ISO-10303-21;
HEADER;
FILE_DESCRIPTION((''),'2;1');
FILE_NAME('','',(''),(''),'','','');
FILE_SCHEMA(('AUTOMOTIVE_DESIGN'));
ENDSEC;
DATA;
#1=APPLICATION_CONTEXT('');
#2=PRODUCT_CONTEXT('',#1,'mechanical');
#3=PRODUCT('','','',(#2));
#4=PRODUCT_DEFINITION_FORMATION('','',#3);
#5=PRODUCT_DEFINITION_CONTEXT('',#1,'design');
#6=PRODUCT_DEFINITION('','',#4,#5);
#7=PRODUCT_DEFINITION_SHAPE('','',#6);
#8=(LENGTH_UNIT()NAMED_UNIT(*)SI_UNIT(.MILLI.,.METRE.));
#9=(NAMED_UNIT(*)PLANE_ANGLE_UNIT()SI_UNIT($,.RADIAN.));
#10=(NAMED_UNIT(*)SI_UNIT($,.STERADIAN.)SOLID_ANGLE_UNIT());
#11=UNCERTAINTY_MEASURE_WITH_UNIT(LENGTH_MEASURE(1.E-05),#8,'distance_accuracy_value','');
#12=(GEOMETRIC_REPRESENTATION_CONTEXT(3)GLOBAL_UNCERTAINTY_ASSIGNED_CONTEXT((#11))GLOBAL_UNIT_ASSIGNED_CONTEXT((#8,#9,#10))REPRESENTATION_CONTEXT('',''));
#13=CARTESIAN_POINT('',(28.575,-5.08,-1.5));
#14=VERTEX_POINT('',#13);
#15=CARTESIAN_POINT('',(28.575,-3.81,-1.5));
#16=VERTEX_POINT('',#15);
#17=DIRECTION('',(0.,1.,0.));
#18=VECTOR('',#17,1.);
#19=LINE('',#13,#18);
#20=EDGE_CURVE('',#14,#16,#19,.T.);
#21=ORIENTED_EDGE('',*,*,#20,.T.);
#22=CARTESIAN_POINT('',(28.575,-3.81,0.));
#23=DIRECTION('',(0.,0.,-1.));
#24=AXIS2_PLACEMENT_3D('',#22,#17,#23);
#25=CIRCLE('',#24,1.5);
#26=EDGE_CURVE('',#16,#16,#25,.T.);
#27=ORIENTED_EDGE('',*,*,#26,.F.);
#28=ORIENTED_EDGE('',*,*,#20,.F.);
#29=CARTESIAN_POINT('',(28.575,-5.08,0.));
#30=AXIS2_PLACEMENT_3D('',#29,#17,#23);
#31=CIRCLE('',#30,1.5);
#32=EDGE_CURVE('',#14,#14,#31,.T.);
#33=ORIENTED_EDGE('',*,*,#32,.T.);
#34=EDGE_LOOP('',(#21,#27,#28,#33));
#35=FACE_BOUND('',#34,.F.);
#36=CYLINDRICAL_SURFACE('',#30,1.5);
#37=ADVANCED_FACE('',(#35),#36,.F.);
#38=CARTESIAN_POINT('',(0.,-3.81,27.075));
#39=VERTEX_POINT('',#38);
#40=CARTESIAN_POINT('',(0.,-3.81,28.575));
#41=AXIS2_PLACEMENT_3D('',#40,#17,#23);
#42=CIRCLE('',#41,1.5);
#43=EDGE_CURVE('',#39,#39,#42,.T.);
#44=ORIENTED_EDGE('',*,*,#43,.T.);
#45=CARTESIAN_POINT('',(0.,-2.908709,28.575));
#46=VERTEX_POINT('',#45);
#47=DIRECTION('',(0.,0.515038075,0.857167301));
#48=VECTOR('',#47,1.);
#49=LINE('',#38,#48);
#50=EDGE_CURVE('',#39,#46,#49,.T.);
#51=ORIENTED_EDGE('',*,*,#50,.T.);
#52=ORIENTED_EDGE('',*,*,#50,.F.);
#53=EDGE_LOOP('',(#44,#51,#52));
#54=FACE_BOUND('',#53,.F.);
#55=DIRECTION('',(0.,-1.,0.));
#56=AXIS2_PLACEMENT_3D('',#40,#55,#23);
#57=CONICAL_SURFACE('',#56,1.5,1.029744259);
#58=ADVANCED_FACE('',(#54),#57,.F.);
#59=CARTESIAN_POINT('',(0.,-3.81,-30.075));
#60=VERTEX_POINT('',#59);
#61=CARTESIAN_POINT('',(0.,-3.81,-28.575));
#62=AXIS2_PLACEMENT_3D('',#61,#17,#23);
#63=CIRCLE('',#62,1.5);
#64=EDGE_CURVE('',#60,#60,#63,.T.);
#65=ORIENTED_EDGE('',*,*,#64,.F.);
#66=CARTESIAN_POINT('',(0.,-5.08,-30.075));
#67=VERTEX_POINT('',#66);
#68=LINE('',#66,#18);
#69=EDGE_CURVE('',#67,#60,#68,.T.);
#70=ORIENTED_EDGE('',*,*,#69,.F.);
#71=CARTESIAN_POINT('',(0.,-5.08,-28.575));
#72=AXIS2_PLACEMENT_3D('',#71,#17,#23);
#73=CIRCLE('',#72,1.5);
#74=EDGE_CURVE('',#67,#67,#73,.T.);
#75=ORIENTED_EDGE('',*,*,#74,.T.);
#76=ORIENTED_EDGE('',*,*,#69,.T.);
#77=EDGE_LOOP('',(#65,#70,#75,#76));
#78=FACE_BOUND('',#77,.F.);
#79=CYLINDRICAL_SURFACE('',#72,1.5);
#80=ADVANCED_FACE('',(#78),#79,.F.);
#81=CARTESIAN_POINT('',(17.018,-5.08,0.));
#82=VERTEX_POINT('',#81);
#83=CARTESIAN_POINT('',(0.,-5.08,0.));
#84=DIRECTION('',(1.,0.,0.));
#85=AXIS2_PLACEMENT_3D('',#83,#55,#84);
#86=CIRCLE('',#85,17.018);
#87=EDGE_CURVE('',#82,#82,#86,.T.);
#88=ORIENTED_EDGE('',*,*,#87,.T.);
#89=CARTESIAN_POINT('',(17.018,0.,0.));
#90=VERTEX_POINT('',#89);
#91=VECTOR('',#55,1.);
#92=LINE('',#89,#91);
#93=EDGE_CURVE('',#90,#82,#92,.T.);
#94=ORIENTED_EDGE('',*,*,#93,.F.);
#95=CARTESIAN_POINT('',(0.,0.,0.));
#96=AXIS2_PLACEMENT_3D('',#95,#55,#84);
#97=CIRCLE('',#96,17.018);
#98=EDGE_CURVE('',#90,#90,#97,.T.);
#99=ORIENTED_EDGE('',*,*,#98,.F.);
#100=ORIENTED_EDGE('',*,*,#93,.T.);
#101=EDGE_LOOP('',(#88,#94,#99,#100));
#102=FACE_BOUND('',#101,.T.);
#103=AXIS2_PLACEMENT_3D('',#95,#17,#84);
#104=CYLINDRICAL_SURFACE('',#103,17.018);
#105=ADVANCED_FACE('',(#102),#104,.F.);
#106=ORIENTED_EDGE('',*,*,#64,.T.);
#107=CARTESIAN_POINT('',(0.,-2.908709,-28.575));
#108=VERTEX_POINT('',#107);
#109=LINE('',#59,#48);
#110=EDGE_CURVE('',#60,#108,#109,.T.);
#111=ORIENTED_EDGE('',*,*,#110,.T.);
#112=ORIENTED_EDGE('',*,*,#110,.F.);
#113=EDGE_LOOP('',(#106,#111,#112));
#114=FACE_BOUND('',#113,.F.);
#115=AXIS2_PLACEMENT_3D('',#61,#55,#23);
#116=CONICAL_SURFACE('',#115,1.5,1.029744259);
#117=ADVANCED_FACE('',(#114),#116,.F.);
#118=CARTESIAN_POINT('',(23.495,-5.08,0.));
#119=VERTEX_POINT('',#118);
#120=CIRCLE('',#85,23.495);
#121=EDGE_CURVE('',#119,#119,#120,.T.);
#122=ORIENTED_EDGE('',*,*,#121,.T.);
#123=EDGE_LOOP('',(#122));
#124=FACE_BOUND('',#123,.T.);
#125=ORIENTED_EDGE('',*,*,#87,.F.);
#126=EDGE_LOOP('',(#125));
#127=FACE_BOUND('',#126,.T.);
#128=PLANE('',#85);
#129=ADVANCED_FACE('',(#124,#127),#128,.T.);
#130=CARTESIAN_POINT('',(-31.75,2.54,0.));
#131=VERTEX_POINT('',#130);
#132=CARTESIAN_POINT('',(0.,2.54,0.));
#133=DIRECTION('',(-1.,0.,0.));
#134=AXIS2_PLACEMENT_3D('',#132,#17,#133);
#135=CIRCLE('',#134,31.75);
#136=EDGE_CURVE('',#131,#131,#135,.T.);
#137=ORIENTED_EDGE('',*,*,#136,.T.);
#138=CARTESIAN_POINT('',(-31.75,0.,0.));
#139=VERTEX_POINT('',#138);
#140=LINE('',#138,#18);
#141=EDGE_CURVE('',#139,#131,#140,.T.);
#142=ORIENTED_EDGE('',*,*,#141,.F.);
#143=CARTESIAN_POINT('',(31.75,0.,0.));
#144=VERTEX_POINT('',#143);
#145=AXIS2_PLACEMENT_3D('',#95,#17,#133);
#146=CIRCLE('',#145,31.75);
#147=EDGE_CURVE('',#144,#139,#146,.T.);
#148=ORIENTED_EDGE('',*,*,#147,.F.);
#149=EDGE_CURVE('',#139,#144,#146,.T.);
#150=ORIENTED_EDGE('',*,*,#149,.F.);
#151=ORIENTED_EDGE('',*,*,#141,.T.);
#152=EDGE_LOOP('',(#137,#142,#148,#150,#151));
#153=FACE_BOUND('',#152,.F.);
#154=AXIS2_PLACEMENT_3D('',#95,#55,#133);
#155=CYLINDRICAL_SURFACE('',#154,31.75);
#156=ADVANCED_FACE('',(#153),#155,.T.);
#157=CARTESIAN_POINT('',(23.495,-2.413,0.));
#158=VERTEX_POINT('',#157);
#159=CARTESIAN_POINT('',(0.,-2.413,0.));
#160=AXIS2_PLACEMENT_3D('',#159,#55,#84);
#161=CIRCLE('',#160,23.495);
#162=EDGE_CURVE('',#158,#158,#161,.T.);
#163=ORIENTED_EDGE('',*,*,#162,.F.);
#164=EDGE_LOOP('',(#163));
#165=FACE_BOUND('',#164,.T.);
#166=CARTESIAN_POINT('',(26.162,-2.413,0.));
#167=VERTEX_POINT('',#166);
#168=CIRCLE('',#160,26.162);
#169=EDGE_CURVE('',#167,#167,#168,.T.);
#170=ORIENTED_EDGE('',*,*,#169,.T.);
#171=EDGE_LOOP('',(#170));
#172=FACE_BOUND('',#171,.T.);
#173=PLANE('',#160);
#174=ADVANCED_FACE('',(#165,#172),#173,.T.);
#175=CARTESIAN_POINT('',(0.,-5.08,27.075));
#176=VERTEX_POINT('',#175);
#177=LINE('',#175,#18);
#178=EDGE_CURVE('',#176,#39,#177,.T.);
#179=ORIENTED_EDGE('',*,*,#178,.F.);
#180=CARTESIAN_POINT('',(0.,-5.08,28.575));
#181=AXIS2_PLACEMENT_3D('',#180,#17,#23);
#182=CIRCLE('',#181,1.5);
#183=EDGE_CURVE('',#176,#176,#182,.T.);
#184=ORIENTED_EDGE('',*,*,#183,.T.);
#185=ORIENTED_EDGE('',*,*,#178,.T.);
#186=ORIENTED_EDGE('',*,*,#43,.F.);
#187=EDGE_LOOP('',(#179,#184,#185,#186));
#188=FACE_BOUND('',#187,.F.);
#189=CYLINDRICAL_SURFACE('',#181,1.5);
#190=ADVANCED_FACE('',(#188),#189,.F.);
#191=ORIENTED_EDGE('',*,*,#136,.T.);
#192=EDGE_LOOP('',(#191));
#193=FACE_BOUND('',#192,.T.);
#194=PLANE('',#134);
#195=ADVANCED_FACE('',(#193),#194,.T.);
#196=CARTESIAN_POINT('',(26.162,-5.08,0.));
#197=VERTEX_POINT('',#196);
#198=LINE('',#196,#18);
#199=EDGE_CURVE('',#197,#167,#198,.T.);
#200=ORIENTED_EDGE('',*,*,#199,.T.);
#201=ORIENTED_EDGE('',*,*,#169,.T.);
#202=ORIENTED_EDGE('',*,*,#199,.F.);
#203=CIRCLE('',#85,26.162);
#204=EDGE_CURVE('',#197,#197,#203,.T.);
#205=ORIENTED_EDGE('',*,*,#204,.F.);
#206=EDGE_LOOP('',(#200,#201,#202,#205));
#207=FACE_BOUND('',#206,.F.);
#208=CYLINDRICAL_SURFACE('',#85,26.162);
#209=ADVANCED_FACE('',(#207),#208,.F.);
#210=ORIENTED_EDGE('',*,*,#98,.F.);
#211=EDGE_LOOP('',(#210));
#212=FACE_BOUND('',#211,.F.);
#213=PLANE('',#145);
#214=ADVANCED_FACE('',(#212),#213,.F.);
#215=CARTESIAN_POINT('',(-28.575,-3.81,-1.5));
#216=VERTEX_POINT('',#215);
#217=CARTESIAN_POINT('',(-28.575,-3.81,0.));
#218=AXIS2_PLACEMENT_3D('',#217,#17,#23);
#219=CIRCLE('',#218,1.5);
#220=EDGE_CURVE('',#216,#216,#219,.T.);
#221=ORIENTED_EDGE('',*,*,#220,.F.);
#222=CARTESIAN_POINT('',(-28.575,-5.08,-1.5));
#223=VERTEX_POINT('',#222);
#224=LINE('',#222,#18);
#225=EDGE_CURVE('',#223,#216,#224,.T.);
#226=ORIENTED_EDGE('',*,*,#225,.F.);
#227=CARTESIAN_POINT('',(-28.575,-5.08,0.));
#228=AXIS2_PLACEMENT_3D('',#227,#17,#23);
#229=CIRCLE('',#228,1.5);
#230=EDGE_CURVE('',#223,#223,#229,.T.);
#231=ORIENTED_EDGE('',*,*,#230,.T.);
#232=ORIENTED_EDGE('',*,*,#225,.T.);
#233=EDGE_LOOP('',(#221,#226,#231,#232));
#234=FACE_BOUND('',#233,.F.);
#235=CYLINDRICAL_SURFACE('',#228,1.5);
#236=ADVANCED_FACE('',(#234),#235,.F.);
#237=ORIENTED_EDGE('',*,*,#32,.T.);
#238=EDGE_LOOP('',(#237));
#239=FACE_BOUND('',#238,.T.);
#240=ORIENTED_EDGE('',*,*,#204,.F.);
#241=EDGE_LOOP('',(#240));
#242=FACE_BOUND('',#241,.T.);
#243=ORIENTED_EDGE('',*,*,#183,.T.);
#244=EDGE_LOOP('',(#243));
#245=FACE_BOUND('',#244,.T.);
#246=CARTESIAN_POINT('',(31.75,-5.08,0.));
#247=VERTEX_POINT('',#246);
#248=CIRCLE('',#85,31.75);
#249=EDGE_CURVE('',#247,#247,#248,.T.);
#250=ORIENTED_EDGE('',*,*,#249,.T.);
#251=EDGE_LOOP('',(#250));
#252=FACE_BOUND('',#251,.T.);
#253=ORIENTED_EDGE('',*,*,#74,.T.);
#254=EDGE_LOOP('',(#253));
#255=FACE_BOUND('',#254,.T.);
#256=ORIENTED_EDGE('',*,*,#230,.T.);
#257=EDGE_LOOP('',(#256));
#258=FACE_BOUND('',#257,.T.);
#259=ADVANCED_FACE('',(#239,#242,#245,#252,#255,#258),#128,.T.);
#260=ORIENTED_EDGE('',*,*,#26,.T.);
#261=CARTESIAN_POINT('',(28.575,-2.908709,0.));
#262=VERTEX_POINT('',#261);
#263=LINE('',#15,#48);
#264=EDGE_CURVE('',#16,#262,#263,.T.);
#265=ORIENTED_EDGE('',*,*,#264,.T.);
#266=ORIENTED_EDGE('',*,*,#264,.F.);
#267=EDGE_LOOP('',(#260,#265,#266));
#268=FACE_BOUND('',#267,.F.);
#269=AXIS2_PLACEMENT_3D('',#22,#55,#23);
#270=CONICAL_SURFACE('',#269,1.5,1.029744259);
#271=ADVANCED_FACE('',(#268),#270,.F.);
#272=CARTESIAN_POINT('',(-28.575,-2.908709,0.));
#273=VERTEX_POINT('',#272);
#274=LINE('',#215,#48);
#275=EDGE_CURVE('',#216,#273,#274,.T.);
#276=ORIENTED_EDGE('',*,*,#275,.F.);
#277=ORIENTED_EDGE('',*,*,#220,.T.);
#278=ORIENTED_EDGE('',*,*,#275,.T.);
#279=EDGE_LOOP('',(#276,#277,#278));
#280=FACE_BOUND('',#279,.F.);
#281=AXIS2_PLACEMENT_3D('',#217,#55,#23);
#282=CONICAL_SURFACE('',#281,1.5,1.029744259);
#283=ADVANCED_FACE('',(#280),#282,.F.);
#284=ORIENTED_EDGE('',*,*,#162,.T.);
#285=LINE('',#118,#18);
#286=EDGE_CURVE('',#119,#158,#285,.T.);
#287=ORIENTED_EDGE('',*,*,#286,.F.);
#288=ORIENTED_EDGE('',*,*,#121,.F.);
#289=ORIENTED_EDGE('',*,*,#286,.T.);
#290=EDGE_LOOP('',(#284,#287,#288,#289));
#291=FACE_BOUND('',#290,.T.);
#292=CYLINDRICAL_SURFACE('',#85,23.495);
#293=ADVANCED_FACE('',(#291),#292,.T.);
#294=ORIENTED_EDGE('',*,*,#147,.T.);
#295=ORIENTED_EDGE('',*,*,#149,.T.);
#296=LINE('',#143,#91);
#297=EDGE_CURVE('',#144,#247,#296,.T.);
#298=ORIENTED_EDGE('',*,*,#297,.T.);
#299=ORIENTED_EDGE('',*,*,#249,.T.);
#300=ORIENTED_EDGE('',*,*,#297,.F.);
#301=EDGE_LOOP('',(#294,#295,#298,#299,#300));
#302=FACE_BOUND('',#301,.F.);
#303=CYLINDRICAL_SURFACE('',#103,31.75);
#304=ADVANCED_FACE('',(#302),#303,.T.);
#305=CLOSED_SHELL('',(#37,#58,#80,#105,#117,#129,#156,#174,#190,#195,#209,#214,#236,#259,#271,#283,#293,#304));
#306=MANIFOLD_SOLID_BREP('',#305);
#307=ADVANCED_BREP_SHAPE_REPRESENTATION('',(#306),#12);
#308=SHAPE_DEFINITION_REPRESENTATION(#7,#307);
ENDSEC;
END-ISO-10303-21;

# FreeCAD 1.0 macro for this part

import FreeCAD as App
import Part
import Sketcher
Q = App.Units.Quantity

doc = App.newDocument("Part")
body = doc.addObject("PartDesign::Body", "Body")

# Sketch on XZ plane
sketch1 = body.newObject("Sketcher::SketchObject", "Sketch")
sketch1.AttachmentSupport = (doc.getObject("XZ_Plane"), [""])
sketch1.MapMode = "FlatFace"
sketch1.addGeometry(Part.Circle(App.Vector(0, 0, 0), App.Vector(0, 0, 1), 32), False)
sketch1.addConstraint([
    Sketcher.Constraint("Coincident", 0, 3, -1, 1),
    Sketcher.Constraint("Diameter", 0, Q("2.5 in")),
])
pad1 = body.newObject("PartDesign::Pad", "Pad")
pad1.Profile = sketch1
pad1.Length = Q("0.1 in")
pad1.Reversed = True

# Sketch on XZ plane
sketch2 = body.newObject("Sketcher::SketchObject", "Sketch001")
sketch2.AttachmentSupport = (doc.getObject("XZ_Plane"), [""])
sketch2.MapMode = "FlatFace"
sketch2.addGeometry([
    Part.Circle(App.Vector(0, 0, 0), App.Vector(0, 0, 1), 32),
    Part.Circle(App.Vector(0, 0, 0), App.Vector(0, 0, 1), 17),
], False)
sketch2.addConstraint([
    Sketcher.Constraint("Coincident", 0, 3, -1, 1),
    Sketcher.Constraint("Coincident", 1, 3, -1, 1),
    Sketcher.Constraint("Diameter", 1, Q("1.34 in")),
    Sketcher.Constraint("Diameter", 0, Q("2.5 in")),
])
pad2 = body.newObject("PartDesign::Pad", "Pad001")
pad2.Profile = sketch2
pad2.Length = Q("0.2 in")

# Sketch on XZ plane
sketch3 = body.newObject("Sketcher::SketchObject", "Sketch002")
sketch3.AttachmentSupport = (doc.getObject("XZ_Plane"), [""])
sketch3.MapMode = "FlatFace"
sketch3.AttachmentOffset = App.Placement(App.Vector(0, 0, 0.2 * 25.4), App.Rotation())
sketch3.addGeometry([
    Part.Circle(App.Vector(0, 0, 0), App.Vector(0, 0, 1), 26),
    Part.Circle(App.Vector(0, 0, 0), App.Vector(0, 0, 1), 23),
], False)
sketch3.addConstraint([
    Sketcher.Constraint("Coincident", 0, 3, -1, 1),
    Sketcher.Constraint("Coincident", 1, 3, -1, 1),
    Sketcher.Constraint("Diameter", 0, Q("2.06 in")),
    Sketcher.Constraint("Diameter", 1, Q("1.85 in")),
])
pocket1 = body.newObject("PartDesign::Pocket", "Pocket")
pocket1.Profile = sketch3
pocket1.Length = Q("0.105 in")

# Sketch on XZ plane
sketch4 = body.newObject("Sketcher::SketchObject", "Sketch003")
sketch4.AttachmentSupport = (doc.getObject("XZ_Plane"), [""])
sketch4.MapMode = "FlatFace"
sketch4.AttachmentOffset = App.Placement(App.Vector(0, 0, 0.2 * 25.4), App.Rotation())
sketch4.addGeometry([
    Part.Circle(App.Vector(-28.6, 0, 0), App.Vector(0, 0, 1), 1.5),
    Part.Circle(App.Vector(0, 28.6, 0), App.Vector(0, 0, 1), 1.5),
    Part.Circle(App.Vector(28.6, 0, 0), App.Vector(0, 0, 1), 1.5),
    Part.Circle(App.Vector(0, -28.6, 0), App.Vector(0, 0, 1), 1.5),
], False)
sketch4.addConstraint([
    Sketcher.Constraint("Equal", 0, 1),
    Sketcher.Constraint("Equal", 1, 2),
    Sketcher.Constraint("Equal", 2, 3),
    Sketcher.Constraint("Symmetric", 0, 3, 2, 3, -1, 1),
    Sketcher.Constraint("Symmetric", 1, 3, 3, 3, -1, 1),
    Sketcher.Constraint("PointOnObject", 0, 3, -1),
    Sketcher.Constraint("PointOnObject", 1, 3, -2),
    Sketcher.Constraint("Diameter", 0, Q("0.1181 in")),
    Sketcher.Constraint("DistanceX", 0, 3, 2, 3, Q("2.25 in")),
    Sketcher.Constraint("DistanceY", 3, 3, 1, 3, Q("2.25 in")),
])
doc.recompute()
hole = body.newObject("PartDesign::Hole", "Hole")
hole.Profile = sketch4
hole.ThreadType = "None"
hole.Diameter = Q("0.1181102 in")
hole.DepthType = "Dimension"
hole.Depth = Q("0.05 in")
hole.DrillPoint = "Angled"
hole.DrillPointAngle = 118

doc.recompute()
